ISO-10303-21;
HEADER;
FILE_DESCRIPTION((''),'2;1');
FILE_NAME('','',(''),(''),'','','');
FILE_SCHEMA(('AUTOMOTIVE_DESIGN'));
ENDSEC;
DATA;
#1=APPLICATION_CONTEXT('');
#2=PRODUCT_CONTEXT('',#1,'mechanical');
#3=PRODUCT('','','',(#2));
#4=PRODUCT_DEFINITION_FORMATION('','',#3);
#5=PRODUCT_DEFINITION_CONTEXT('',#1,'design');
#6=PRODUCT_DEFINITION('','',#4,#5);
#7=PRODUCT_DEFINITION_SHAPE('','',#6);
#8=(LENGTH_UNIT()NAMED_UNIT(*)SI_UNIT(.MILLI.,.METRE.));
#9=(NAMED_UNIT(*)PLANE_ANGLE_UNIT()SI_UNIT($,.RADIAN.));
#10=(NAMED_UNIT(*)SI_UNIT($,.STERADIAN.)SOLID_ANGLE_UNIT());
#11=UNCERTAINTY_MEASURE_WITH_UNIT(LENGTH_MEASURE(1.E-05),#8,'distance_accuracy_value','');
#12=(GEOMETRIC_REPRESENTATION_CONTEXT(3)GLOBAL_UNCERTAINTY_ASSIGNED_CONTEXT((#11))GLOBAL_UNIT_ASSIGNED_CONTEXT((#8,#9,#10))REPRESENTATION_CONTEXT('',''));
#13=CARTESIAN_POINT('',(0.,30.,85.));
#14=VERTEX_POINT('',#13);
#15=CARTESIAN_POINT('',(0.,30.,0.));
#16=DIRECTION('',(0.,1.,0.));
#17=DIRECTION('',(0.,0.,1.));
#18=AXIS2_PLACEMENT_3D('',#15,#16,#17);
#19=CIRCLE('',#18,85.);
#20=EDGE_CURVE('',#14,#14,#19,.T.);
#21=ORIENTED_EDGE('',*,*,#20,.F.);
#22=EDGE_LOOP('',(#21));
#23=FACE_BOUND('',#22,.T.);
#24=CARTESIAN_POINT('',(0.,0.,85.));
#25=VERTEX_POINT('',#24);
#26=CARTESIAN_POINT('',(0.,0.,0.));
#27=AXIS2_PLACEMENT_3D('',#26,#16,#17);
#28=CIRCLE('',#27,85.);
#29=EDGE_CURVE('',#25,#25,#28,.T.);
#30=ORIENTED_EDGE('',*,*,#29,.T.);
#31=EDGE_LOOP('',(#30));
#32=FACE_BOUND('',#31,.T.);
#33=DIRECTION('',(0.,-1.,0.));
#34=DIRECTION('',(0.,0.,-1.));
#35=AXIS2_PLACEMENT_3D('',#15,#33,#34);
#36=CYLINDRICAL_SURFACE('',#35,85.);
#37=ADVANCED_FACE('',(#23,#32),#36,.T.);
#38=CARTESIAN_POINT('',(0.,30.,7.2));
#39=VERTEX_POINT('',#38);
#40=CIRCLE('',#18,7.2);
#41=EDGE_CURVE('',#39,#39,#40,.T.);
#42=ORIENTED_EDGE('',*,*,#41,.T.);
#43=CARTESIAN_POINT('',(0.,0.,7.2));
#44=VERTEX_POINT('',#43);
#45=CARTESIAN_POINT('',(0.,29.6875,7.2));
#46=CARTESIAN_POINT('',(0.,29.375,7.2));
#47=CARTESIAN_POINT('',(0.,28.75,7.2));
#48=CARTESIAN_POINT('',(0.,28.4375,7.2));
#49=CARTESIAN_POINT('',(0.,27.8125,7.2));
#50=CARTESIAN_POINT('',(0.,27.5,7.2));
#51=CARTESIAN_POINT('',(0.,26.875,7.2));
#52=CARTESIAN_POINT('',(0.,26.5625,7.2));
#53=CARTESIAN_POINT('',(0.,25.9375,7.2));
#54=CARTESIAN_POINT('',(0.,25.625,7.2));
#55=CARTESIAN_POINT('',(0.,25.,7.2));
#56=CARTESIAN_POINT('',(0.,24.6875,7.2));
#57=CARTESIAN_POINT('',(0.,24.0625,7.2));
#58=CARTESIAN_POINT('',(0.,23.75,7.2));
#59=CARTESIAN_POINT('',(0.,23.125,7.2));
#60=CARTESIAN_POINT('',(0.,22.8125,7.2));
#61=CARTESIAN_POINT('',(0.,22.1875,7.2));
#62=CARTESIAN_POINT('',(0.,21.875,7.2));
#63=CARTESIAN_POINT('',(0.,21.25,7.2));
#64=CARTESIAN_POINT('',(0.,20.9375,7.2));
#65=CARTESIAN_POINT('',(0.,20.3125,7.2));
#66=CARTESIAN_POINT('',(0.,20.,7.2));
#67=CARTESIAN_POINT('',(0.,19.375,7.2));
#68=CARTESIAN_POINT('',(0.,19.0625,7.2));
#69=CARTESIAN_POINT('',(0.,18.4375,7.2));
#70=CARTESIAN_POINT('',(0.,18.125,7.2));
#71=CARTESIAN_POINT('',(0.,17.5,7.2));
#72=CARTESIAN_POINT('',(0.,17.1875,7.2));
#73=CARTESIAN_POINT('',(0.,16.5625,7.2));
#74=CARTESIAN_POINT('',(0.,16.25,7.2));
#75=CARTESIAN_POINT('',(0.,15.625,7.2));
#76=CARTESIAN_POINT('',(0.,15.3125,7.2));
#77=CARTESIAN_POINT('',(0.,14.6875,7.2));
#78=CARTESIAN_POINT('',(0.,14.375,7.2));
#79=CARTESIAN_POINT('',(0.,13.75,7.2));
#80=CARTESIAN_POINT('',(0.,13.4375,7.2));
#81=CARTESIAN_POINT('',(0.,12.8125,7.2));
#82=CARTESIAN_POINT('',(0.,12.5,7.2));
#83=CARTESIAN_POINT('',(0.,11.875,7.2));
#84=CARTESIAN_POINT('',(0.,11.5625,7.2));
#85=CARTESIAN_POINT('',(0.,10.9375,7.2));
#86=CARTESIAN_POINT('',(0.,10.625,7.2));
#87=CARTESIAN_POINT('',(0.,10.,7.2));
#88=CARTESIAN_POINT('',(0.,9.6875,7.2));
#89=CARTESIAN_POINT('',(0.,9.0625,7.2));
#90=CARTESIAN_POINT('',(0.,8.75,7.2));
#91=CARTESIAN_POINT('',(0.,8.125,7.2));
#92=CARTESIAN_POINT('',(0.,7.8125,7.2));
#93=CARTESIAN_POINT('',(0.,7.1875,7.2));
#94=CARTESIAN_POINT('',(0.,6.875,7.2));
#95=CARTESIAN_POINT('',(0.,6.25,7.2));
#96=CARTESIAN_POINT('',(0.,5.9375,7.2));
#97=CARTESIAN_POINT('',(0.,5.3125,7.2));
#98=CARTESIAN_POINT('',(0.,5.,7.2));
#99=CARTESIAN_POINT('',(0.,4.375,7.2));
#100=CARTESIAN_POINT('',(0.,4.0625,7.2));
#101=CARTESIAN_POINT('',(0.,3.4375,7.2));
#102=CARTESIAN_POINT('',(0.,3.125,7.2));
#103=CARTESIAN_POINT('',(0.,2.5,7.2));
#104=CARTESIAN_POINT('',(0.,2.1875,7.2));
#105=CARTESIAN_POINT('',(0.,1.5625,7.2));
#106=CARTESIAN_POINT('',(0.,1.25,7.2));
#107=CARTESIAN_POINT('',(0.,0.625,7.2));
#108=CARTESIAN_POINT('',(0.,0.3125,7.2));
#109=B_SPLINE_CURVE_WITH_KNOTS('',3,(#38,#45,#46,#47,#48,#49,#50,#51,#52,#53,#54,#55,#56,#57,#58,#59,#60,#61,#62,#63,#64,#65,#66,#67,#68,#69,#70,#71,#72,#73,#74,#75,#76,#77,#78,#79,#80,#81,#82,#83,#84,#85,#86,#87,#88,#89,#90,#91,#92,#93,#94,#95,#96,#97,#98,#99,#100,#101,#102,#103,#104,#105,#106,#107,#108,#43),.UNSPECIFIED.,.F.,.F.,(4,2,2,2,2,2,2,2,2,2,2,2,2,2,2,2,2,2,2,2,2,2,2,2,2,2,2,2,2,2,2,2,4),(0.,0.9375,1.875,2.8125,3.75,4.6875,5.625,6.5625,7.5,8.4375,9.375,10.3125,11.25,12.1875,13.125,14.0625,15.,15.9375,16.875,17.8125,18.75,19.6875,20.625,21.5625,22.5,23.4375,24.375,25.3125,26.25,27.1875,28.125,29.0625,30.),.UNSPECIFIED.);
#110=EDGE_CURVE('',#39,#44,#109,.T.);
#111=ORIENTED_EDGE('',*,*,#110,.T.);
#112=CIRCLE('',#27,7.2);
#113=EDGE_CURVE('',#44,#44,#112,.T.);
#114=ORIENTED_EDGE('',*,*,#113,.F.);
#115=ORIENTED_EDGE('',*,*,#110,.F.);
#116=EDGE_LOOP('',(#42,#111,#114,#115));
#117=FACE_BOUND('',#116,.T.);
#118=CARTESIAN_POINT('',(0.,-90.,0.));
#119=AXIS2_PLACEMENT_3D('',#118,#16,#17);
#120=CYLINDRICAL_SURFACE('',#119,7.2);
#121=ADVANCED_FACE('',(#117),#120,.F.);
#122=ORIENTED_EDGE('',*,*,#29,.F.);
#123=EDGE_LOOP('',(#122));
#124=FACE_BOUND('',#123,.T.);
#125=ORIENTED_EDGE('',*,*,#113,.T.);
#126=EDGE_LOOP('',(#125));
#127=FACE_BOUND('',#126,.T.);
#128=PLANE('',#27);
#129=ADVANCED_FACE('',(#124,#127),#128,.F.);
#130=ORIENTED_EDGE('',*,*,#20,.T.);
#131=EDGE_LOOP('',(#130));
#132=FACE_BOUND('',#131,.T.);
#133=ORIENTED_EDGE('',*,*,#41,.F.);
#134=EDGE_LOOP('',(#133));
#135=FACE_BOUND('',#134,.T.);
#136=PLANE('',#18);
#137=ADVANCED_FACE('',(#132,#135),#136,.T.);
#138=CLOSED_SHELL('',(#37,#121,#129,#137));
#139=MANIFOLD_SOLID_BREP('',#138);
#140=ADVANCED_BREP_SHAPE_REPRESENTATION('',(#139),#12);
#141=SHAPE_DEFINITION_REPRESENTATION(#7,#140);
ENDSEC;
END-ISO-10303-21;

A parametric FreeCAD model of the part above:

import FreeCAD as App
import Part
import Sketcher

V = App.Vector

doc = App.newDocument("Part")
body = doc.addObject("PartDesign::Body", "Body")

# Sketch on XZ plane
sketch1 = body.newObject("Sketcher::SketchObject", "Sketch")
sketch1.AttachmentSupport = (doc.getObject("XZ_Plane"), [""])
sketch1.MapMode = "FlatFace"
sketch1.addGeometry(Part.Circle(V(0, 0, 0), V(0, 0, 1), 85), False)
sketch1.addConstraint([
    Sketcher.Constraint("Coincident", 0, 3, -1, 1),
    Sketcher.Constraint("Diameter", 0, 170.0),
])
pad1 = body.newObject("PartDesign::Pad", "Pad")
pad1.Profile = sketch1
pad1.Length = 30
pad1.Reversed = True

# Sketch on XZ plane
sketch2 = body.newObject("Sketcher::SketchObject", "Sketch001")
sketch2.AttachmentSupport = (doc.getObject("XZ_Plane"), [""])
sketch2.MapMode = "FlatFace"
sketch2.AttachmentOffset = App.Placement(V(0, 0, -30), App.Rotation())
sketch2.addGeometry(Part.Circle(V(0, 0, 0), V(0, 0, 1), 7.2), False)
sketch2.addConstraint([
    Sketcher.Constraint("Coincident", 0, 3, -1, 1),
    Sketcher.Constraint("Diameter", 0, 14.4),
])
pocket1 = body.newObject("PartDesign::Pocket", "Pocket")
pocket1.Profile = sketch2
pocket1.Length = 120
pocket1.Reversed = True

doc.recompute()
